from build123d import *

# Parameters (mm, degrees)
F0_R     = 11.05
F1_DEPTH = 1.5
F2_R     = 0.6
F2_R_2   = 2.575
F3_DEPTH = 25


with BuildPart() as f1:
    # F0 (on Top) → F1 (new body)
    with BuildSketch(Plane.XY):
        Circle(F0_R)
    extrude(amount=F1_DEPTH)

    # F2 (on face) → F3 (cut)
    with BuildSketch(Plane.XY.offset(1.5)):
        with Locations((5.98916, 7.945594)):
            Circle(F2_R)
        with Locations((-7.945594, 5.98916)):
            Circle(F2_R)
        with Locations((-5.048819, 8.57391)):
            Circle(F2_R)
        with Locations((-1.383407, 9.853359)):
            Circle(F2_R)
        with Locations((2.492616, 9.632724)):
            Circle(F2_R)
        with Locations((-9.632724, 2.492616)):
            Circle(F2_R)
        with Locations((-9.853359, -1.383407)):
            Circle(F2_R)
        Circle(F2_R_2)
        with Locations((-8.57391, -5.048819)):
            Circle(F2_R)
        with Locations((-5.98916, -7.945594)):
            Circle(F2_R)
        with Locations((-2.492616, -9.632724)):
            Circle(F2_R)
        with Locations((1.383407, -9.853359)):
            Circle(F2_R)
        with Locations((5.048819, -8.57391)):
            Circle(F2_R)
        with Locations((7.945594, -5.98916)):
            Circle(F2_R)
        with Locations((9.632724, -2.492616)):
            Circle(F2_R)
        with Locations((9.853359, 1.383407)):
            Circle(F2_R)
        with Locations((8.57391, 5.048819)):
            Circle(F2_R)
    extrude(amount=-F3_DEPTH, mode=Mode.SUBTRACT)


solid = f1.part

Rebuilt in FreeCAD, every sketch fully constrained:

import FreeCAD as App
import Part
import Sketcher

doc = App.newDocument("Part")
body = doc.addObject("PartDesign::Body", "Body")

# Sketch on XY plane
sketch1 = body.newObject("Sketcher::SketchObject", "Sketch")
sketch1.AttachmentSupport = (doc.getObject("XY_Plane"), [""])
sketch1.MapMode = "FlatFace"
sketch1.addGeometry(Part.Circle(App.Vector(0, 0, 0), App.Vector(0, 0, 1), 11.05), False)
sketch1.addConstraint([
    Sketcher.Constraint("Coincident", 0, 3, -1, 1),
    Sketcher.Constraint("Diameter", 0, 22.1),
])
pad1 = body.newObject("PartDesign::Pad", "Pad")
pad1.Profile = sketch1
pad1.Length = 1.5

# Sketch on XY plane
sketch2 = body.newObject("Sketcher::SketchObject", "Sketch001")
sketch2.AttachmentSupport = (doc.getObject("XY_Plane"), [""])
sketch2.MapMode = "FlatFace"
sketch2.AttachmentOffset = App.Placement(App.Vector(0, 0, 1.5), App.Rotation())
sketch2.addGeometry([
    Part.Circle(App.Vector(5.98916, 7.945594, 0), App.Vector(0, 0, 1), 0.6),  # 0
    Part.Circle(App.Vector(-7.945594, 5.98916, 0), App.Vector(0, 0, 1), 0.6),  # 1
    Part.Circle(App.Vector(-5.048819, 8.57391, 0), App.Vector(0, 0, 1), 0.6),  # 2
    Part.Circle(App.Vector(-1.383407, 9.853359, 0), App.Vector(0, 0, 1), 0.6),  # 3
    Part.Circle(App.Vector(2.492616, 9.632724, 0), App.Vector(0, 0, 1), 0.6),  # 4
    Part.Circle(App.Vector(-9.632724, 2.492616, 0), App.Vector(0, 0, 1), 0.6),  # 5
    Part.Circle(App.Vector(-9.853359, -1.383407, 0), App.Vector(0, 0, 1), 0.6),  # 6
    Part.Circle(App.Vector(0, 0, 0), App.Vector(0, 0, 1), 2.575),  # 7
    Part.Circle(App.Vector(-8.57391, -5.048819, 0), App.Vector(0, 0, 1), 0.6),  # 8
    Part.Circle(App.Vector(-5.98916, -7.945594, 0), App.Vector(0, 0, 1), 0.6),  # 9
    Part.Circle(App.Vector(-2.492616, -9.632724, 0), App.Vector(0, 0, 1), 0.6),  # 10
    Part.Circle(App.Vector(1.383407, -9.853359, 0), App.Vector(0, 0, 1), 0.6),  # 11
    Part.Circle(App.Vector(5.048819, -8.57391, 0), App.Vector(0, 0, 1), 0.6),  # 12
    Part.Circle(App.Vector(7.945594, -5.98916, 0), App.Vector(0, 0, 1), 0.6),  # 13
    Part.Circle(App.Vector(9.632724, -2.492616, 0), App.Vector(0, 0, 1), 0.6),  # 14
    Part.Circle(App.Vector(9.853359, 1.383407, 0), App.Vector(0, 0, 1), 0.6),  # 15
    Part.Circle(App.Vector(8.57391, 5.048819, 0), App.Vector(0, 0, 1), 0.6),  # 16
], False)
sketch2.addConstraint([
    Sketcher.Constraint("Coincident", 7, 3, -1, 1),
    Sketcher.Constraint("Equal", 0, 1),
    Sketcher.Constraint("Equal", 1, 2),
    Sketcher.Constraint("Equal", 2, 3),
    Sketcher.Constraint("Equal", 3, 4),
    Sketcher.Constraint("Equal", 4, 5),
    Sketcher.Constraint("Equal", 5, 6),
    Sketcher.Constraint("Equal", 6, 8),
    Sketcher.Constraint("Equal", 8, 9),
    Sketcher.Constraint("Equal", 9, 10),
    Sketcher.Constraint("Equal", 10, 11),
    Sketcher.Constraint("Equal", 11, 12),
    Sketcher.Constraint("Equal", 12, 13),
    Sketcher.Constraint("Equal", 13, 14),
    Sketcher.Constraint("Equal", 14, 15),
    Sketcher.Constraint("Equal", 15, 16),
    Sketcher.Constraint("Symmetric", 0, 3, 9, 3, -1, 1),
    Sketcher.Constraint("Symmetric", 4, 3, 10, 3, -1, 1),
    Sketcher.Constraint("Symmetric", 3, 3, 11, 3, -1, 1),
    Sketcher.Constraint("Symmetric", 2, 3, 12, 3, -1, 1),
    Sketcher.Constraint("Symmetric", 1, 3, 13, 3, -1, 1),
    Sketcher.Constraint("Symmetric", 5, 3, 14, 3, -1, 1),
    Sketcher.Constraint("Symmetric", 6, 3, 15, 3, -1, 1),
    Sketcher.Constraint("Symmetric", 8, 3, 16, 3, -1, 1),
    Sketcher.Constraint("Diameter", 0, 1.2),
    Sketcher.Constraint("Diameter", 7, 5.15),
    Sketcher.Constraint("DistanceY", 1, 3, 3, 3, 3.864199),
    Sketcher.Constraint("DistanceX", 6, 3, 9, 3, 3.864199),
    Sketcher.Constraint("DistanceX", -1, 1, 0, 3, 5.98916),
    Sketcher.Constraint("DistanceY", -1, 1, 1, 3, 5.98916),
    Sketcher.Constraint("DistanceX", 2, 3, -1, 1, 5.048819),
    Sketcher.Constraint("DistanceY", -1, 1, 2, 3, 8.57391),
    Sketcher.Constraint("DistanceX", 8, 3, -1, 1, 8.57391),
    Sketcher.Constraint("DistanceY", 8, 3, -1, 1, 5.048819),
    Sketcher.Constraint("DistanceX", 2, 3, 3, 3, 3.665412),
    Sketcher.Constraint("DistanceY", 0, 3, 4, 3, 1.68713),
    Sketcher.Constraint("DistanceX", 1, 3, 4, 3, 10.43821),
    Sketcher.Constraint("DistanceX", 5, 3, 1, 3, 1.68713),
    Sketcher.Constraint("DistanceY", 6, 3, 4, 3, 11.016131),
    Sketcher.Constraint("DistanceY", 8, 3, 6, 3, 3.665412),
    Sketcher.Constraint("DistanceY", 9, 3, 5, 3, 10.43821),
    Sketcher.Constraint("DistanceX", 1, 3, -1, 1, 7.945594),
])
pocket1 = body.newObject("PartDesign::Pocket", "Pocket")
pocket1.Profile = sketch2
pocket1.Length = 25

doc.recompute()
